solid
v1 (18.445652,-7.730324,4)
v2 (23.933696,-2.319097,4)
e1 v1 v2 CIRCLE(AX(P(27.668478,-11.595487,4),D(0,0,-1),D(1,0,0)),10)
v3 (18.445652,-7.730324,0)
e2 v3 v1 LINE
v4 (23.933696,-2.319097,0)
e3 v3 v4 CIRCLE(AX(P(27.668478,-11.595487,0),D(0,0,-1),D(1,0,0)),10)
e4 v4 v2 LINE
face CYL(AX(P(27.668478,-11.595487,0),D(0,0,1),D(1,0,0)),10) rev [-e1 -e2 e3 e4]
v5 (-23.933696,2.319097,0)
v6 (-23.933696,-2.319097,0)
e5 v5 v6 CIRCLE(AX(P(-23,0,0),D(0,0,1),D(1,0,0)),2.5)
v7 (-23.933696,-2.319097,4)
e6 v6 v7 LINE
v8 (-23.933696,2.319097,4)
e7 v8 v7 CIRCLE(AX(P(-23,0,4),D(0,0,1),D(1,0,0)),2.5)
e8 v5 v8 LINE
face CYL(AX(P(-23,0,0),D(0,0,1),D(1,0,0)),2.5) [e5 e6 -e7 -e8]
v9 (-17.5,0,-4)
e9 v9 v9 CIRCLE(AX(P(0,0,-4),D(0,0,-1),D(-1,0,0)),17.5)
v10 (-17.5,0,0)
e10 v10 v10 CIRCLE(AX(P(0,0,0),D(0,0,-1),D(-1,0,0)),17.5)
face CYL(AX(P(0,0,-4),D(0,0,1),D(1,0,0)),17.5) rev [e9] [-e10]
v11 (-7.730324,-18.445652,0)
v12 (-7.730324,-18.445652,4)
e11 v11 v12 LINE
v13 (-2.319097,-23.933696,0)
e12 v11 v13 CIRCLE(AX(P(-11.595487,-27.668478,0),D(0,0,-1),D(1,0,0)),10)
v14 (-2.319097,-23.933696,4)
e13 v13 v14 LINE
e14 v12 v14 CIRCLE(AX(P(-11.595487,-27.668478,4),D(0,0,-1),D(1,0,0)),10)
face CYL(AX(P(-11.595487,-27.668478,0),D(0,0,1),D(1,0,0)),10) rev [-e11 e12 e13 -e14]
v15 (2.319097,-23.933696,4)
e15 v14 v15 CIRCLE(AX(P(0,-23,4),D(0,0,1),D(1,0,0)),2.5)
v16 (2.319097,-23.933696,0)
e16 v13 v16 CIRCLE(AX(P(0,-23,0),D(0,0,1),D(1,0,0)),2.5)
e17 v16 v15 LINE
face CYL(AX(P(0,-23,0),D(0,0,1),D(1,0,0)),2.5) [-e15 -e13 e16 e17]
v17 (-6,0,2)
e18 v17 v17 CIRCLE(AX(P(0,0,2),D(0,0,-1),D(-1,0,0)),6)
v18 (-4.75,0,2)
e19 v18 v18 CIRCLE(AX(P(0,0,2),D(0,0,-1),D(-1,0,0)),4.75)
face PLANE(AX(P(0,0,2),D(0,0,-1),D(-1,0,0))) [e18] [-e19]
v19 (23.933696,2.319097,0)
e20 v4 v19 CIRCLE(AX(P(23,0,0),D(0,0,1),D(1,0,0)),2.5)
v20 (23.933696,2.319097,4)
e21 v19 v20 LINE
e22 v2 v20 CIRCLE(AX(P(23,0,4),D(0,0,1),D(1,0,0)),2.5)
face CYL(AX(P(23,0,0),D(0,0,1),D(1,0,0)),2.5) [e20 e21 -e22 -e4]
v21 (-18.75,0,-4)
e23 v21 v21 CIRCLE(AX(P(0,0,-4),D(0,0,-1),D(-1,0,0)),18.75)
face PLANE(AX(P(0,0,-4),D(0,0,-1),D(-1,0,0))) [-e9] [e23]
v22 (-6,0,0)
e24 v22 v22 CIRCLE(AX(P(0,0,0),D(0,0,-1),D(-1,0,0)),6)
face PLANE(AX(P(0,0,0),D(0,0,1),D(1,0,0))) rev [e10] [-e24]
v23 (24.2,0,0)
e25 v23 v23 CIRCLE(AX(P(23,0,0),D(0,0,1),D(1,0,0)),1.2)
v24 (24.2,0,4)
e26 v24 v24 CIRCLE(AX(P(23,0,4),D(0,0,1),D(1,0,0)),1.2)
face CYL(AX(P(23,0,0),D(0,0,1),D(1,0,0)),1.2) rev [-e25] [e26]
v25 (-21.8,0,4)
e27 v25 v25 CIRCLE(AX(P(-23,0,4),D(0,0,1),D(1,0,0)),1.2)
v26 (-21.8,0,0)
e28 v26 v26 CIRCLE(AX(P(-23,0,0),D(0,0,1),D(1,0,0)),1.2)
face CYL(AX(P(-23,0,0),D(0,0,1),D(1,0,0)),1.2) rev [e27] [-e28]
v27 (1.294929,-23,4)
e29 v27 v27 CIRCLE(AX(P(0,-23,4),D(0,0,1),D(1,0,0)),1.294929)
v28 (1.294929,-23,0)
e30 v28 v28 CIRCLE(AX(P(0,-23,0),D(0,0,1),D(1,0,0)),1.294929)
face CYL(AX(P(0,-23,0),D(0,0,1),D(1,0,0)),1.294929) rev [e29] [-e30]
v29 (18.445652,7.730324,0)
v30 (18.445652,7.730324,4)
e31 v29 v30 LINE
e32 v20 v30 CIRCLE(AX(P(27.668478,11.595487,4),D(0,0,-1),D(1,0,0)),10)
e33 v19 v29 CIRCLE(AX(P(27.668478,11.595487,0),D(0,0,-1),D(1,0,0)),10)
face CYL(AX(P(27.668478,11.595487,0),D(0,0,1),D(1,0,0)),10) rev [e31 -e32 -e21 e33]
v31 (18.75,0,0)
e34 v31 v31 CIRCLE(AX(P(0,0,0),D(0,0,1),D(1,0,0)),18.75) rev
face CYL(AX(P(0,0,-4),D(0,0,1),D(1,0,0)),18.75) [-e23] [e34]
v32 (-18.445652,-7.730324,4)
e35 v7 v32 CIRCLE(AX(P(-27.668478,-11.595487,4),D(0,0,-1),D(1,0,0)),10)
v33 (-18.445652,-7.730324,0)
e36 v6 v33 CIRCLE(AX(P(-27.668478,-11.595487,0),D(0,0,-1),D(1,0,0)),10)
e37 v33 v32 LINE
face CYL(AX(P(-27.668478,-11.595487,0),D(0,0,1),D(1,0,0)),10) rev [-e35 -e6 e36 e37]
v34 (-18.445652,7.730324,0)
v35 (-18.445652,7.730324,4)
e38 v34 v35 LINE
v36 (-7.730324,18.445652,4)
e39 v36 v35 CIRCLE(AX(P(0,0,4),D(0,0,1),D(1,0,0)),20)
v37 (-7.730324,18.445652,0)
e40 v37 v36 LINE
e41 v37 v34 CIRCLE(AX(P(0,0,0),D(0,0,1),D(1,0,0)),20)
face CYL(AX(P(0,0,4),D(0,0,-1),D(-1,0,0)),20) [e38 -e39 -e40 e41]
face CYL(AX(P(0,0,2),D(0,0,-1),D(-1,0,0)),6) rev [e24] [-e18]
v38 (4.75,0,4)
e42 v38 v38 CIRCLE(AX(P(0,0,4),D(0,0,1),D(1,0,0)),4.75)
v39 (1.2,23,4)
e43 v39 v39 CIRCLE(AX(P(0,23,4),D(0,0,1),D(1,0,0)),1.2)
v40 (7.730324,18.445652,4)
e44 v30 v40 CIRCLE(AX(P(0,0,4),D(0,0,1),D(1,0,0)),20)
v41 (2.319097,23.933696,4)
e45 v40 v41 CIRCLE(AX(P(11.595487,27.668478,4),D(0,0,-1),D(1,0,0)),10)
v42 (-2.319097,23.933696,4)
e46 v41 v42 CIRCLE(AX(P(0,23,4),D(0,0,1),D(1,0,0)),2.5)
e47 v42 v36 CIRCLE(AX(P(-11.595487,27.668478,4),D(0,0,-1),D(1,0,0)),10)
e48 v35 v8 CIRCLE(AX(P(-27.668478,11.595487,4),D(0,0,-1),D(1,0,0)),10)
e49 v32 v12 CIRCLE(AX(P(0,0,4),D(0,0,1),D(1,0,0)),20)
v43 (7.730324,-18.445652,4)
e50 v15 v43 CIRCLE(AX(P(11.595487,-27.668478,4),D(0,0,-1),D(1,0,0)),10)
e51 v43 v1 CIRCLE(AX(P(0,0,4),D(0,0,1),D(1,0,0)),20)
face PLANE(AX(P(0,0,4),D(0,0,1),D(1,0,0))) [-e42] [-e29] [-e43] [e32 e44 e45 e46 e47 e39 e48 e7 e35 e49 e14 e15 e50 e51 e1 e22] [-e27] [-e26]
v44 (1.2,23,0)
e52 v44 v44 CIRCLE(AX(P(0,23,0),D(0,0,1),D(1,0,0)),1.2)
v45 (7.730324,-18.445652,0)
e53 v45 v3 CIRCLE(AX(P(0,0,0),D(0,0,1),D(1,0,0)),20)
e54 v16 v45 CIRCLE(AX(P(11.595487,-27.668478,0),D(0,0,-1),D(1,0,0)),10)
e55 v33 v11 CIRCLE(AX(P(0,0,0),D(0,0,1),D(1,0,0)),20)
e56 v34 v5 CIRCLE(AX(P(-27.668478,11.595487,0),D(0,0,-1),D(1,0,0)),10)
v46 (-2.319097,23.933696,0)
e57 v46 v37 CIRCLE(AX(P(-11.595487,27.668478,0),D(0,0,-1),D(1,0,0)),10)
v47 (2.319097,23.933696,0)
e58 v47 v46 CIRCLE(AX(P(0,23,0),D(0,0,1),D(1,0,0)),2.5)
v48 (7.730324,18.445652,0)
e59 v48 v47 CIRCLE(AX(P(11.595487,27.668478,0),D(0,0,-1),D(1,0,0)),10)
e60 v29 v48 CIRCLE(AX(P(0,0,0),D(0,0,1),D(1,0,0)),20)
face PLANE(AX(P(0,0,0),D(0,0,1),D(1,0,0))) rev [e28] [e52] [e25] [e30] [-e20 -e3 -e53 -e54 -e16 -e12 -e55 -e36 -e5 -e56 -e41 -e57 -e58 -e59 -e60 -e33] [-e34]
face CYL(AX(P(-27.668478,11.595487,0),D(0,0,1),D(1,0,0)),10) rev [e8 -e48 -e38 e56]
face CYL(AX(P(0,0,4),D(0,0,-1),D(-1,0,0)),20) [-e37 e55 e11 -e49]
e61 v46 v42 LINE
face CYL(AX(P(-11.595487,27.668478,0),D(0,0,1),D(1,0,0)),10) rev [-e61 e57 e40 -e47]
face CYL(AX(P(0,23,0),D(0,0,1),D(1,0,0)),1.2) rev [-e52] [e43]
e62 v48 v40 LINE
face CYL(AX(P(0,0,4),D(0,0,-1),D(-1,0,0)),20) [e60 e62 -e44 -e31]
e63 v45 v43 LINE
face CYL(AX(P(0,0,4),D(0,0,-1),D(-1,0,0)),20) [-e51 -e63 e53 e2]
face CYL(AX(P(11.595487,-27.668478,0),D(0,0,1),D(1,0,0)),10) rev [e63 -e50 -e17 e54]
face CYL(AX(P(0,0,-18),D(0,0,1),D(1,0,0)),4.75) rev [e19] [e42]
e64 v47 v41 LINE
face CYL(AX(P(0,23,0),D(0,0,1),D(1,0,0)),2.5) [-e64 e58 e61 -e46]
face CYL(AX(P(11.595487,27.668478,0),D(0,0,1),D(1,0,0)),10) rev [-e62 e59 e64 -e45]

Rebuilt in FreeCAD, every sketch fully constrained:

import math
import FreeCAD as App
import Part
import Sketcher

V = App.Vector
Q = App.Units.Quantity

doc = App.newDocument("Part")
params = doc.addObject("Spreadsheet::Sheet", "Params")
for row, (alias, value) in enumerate([
    ("sketch1_diameter", "40 mm"),
    ("pad1_length", "4 mm"),
    ("sketch2_diameter", "12 mm"),
    ("pocket1_length", "2 mm"),
    ("sketch3_diameter", "9.5 mm"),
    ("pocket2_length", "22 mm"),
    ("sketch4_diameter", "35 mm"),
    ("sketch4_diameter2", "37.5 mm"),
    ("pad2_length", "4 mm"),
    ("sketch5_radius", "10 mm"),
    ("sketch5_radius2", "20 mm"),
    ("sketch5_diameter", "2.4 mm"),
    ("sketch5_radius3", "2.5 mm"),
    ("pad3_length", "4 mm"),
], start=1):
    params.set(f"A{row}", alias)
    params.set(f"B{row}", "=" + value)
    params.setAlias(f"B{row}", alias)

body = doc.addObject("PartDesign::Body", "Body")

# Sketch on XY plane
sketch1 = doc.addObject("Sketcher::SketchObject", "Sketch")
body.addObject(sketch1)
sketch1.AttachmentSupport = (doc.XY_Plane, [""])
sketch1.MapMode = "FlatFace"
sketch1.addGeometry(Part.Circle(V(0, 0, 0), V(0, 0, 1), 20), False)
sketch1.addConstraint([
    Sketcher.Constraint("Coincident", 0, 3, -1, 1),
    Sketcher.Constraint("Diameter", 0, Q("40 mm")),
])
sketch1.setExpression("Constraints[1]", "Params.sketch1_diameter")
pad1 = doc.addObject("PartDesign::Pad", "Pad")
body.addObject(pad1)
pad1.Profile = sketch1
pad1.setExpression("Length", "Params.pad1_length")

# Sketch on XY plane
sketch2 = doc.addObject("Sketcher::SketchObject", "Sketch001")
body.addObject(sketch2)
sketch2.AttachmentSupport = (doc.XY_Plane, [""])
sketch2.MapMode = "FlatFace"
sketch2.addGeometry(Part.Circle(V(0, 0, 0), V(0, 0, 1), 6), False)
sketch2.addConstraint([
    Sketcher.Constraint("Coincident", 0, 3, -1, 1),
    Sketcher.Constraint("Diameter", 0, Q("12 mm")),
])
sketch2.setExpression("Constraints[1]", "Params.sketch2_diameter")
pocket1 = doc.addObject("PartDesign::Pocket", "Pocket")
body.addObject(pocket1)
pocket1.Profile = sketch2
pocket1.setExpression("Length", "Params.pocket1_length")
pocket1.Reversed = True

# Sketch on XY plane
sketch3 = doc.addObject("Sketcher::SketchObject", "Sketch002")
body.addObject(sketch3)
sketch3.AttachmentSupport = (doc.XY_Plane, [""])
sketch3.MapMode = "FlatFace"
sketch3.AttachmentOffset = App.Placement(V(0, 0, 4), App.Rotation())
sketch3.addGeometry(Part.Circle(V(0, 0, 0), V(0, 0, 1), 4.8), False)
sketch3.addConstraint([
    Sketcher.Constraint("Coincident", 0, 3, -1, 1),
    Sketcher.Constraint("Diameter", 0, Q("9.5 mm")),
])
sketch3.setExpression("Constraints[1]", "Params.sketch3_diameter")
pocket2 = doc.addObject("PartDesign::Pocket", "Pocket001")
body.addObject(pocket2)
pocket2.Profile = sketch3
pocket2.setExpression("Length", "Params.pocket2_length")

# Sketch on XY plane
sketch4 = doc.addObject("Sketcher::SketchObject", "Sketch003")
body.addObject(sketch4)
sketch4.AttachmentSupport = (doc.XY_Plane, [""])
sketch4.MapMode = "FlatFace"
sketch4.addGeometry([
    Part.Circle(V(0, 0, 0), V(0, 0, 1), 19),
    Part.Circle(V(0, 0, 0), V(0, 0, 1), 18),
], False)
sketch4.addConstraint([
    Sketcher.Constraint("Coincident", 0, 3, -1, 1),
    Sketcher.Constraint("Coincident", 1, 3, -1, 1),
    Sketcher.Constraint("Diameter", 1, Q("35 mm")),
    Sketcher.Constraint("Diameter", 0, Q("37.5 mm")),
])
sketch4.setExpression("Constraints[2]", "Params.sketch4_diameter")
sketch4.setExpression("Constraints[3]", "Params.sketch4_diameter2")
pad2 = doc.addObject("PartDesign::Pad", "Pad001")
body.addObject(pad2)
pad2.Profile = sketch4
pad2.setExpression("Length", "Params.pad2_length")
pad2.Reversed = True

# Sketch on XY plane
sketch5 = doc.addObject("Sketcher::SketchObject", "Sketch004")
body.addObject(sketch5)
sketch5.AttachmentSupport = (doc.XY_Plane, [""])
sketch5.MapMode = "FlatFace"
sketch5.AttachmentOffset = App.Placement(V(0, 0, 4), App.Rotation())
sketch5.addGeometry([
    Part.ArcOfCircle(Part.Circle(V(0, -23, 0), V(0, 0, 1), 2.5), math.radians(-158), math.radians(-22)),  # 0
    Part.ArcOfCircle(Part.Circle(V(11.6, -27.7, 0), V(0, 0, 1), 10), math.radians(113), math.radians(158)),  # 1
    Part.ArcOfCircle(Part.Circle(V(0, 0, 0), V(0, 0, 1), 20), math.radians(-113), math.radians(-67)),  # 2
    Part.ArcOfCircle(Part.Circle(V(-11.6, -27.7, 0), V(0, 0, 1), 10), math.radians(22), math.radians(67)),  # 3
    Part.Circle(V(0, -23, 0), V(0, 0, 1), 1.3),  # 4
    Part.ArcOfCircle(Part.Circle(V(-23, 0, 0), V(0, 0, 1), 2.5), math.radians(112), math.radians(248)),  # 5
    Part.ArcOfCircle(Part.Circle(V(-27.7, -11.6, 0), V(0, 0, 1), 10), math.radians(23), math.radians(68)),  # 6
    Part.ArcOfCircle(Part.Circle(V(0, 0, 0), V(0, 0, 1), 20), math.radians(157), math.radians(203)),  # 7
    Part.ArcOfCircle(Part.Circle(V(-27.7, 11.6, 0), V(0, 0, 1), 10), math.radians(-68), math.radians(-23)),  # 8
    Part.Circle(V(-23, 0, 0), V(0, 0, 1), 1.2),  # 9
    Part.ArcOfCircle(Part.Circle(V(23, 0, 0), V(0, 0, 1), 2.5), math.radians(-68), math.radians(68)),  # 10
    Part.ArcOfCircle(Part.Circle(V(27.7, 11.6, 0), V(0, 0, 1), 10), math.radians(-157), math.radians(-112)),  # 11
    Part.ArcOfCircle(Part.Circle(V(0, 0, 0), V(0, 0, 1), 20), math.radians(-23), math.radians(23)),  # 12
    Part.ArcOfCircle(Part.Circle(V(27.7, -11.6, 0), V(0, 0, 1), 10), math.radians(112), math.radians(157)),  # 13
    Part.Circle(V(23, 0, 0), V(0, 0, 1), 1.2),  # 14
    Part.ArcOfCircle(Part.Circle(V(0, 23, 0), V(0, 0, 1), 2.5), math.radians(22), math.radians(158)),  # 15
    Part.ArcOfCircle(Part.Circle(V(-11.6, 27.7, 0), V(0, 0, 1), 10), math.radians(-67), math.radians(-22)),  # 16
    Part.ArcOfCircle(Part.Circle(V(0, 0, 0), V(0, 0, 1), 20), math.radians(67), math.radians(113)),  # 17
    Part.ArcOfCircle(Part.Circle(V(11.6, 27.7, 0), V(0, 0, 1), 10), math.radians(-158), math.radians(-113)),  # 18
    Part.Circle(V(0, 23, 0), V(0, 0, 1), 1.2),  # 19
], False)
sketch5.addConstraint([
    Sketcher.Constraint("Tangent", 0, 2, 1, 2),
    Sketcher.Constraint("Tangent", 1, 1, 2, 2),
    Sketcher.Constraint("Tangent", 2, 1, 3, 2),
    Sketcher.Constraint("Tangent", 3, 1, 0, 1),
    Sketcher.Constraint("Tangent", 5, 2, 6, 2),
    Sketcher.Constraint("Tangent", 6, 1, 7, 2),
    Sketcher.Constraint("Tangent", 7, 1, 8, 2),
    Sketcher.Constraint("Tangent", 8, 1, 5, 1),
    Sketcher.Constraint("Tangent", 10, 2, 11, 2),
    Sketcher.Constraint("Tangent", 11, 1, 12, 2),
    Sketcher.Constraint("Tangent", 12, 1, 13, 2),
    Sketcher.Constraint("Tangent", 13, 1, 10, 1),
    Sketcher.Constraint("Tangent", 15, 2, 16, 2),
    Sketcher.Constraint("Tangent", 16, 1, 17, 2),
    Sketcher.Constraint("Tangent", 17, 1, 18, 2),
    Sketcher.Constraint("Tangent", 18, 1, 15, 1),
    Sketcher.Constraint("Coincident", 2, 3, -1, 1),
    Sketcher.Constraint("Coincident", 7, 3, -1, 1),
    Sketcher.Constraint("Coincident", 12, 3, -1, 1),
    Sketcher.Constraint("Coincident", 17, 3, -1, 1),
    Sketcher.Constraint("Coincident", 4, 3, 0, 3),
    Sketcher.Constraint("Coincident", 9, 3, 5, 3),
    Sketcher.Constraint("Coincident", 14, 3, 10, 3),
    Sketcher.Constraint("Coincident", 19, 3, 15, 3),
    Sketcher.Constraint("Equal", 1, 3),
    Sketcher.Constraint("Equal", 0, 5),
    Sketcher.Constraint("Equal", 3, 6),
    Sketcher.Constraint("Equal", 2, 7),
    Sketcher.Constraint("Equal", 6, 8),
    Sketcher.Constraint("Equal", 5, 10),
    Sketcher.Constraint("Equal", 8, 11),
    Sketcher.Constraint("Equal", 7, 12),
    Sketcher.Constraint("Equal", 11, 13),
    Sketcher.Constraint("Equal", 9, 14),
    Sketcher.Constraint("Equal", 10, 15),
    Sketcher.Constraint("Equal", 13, 16),
    Sketcher.Constraint("Equal", 12, 17),
    Sketcher.Constraint("Equal", 16, 18),
    Sketcher.Constraint("Equal", 14, 19),
    Sketcher.Constraint("Symmetric", 5, 3, 10, 3, -1, 1),
    Sketcher.Constraint("Symmetric", 0, 3, 15, 3, -1, 1),
    Sketcher.Constraint("PointOnObject", 0, 3, -2),
    Sketcher.Constraint("PointOnObject", 5, 3, -1),
    Sketcher.Constraint("Radius", 1, Q("10 mm")),
    Sketcher.Constraint("Radius", 2, Q("20 mm")),
    Sketcher.Constraint("Diameter", 9, Q("2.4 mm")),
    Sketcher.Constraint("Radius", 0, Q("2.5 mm")),
    Sketcher.Constraint("DistanceY", 0, 3, -1, 1, Q("23 mm")),
    Sketcher.Constraint("DistanceX", 5, 3, -1, 1, Q("23 mm")),
    Sketcher.Constraint("Diameter", 4, Q("2.589859 mm")),
])
sketch5.setExpression("Constraints[43]", "Params.sketch5_radius")
sketch5.setExpression("Constraints[44]", "Params.sketch5_radius2")
sketch5.setExpression("Constraints[45]", "Params.sketch5_diameter")
sketch5.setExpression("Constraints[46]", "Params.sketch5_radius3")
pad3 = doc.addObject("PartDesign::Pad", "Pad002")
body.addObject(pad3)
pad3.Profile = sketch5
pad3.setExpression("Length", "Params.pad3_length")
pad3.Reversed = True

doc.recompute()
